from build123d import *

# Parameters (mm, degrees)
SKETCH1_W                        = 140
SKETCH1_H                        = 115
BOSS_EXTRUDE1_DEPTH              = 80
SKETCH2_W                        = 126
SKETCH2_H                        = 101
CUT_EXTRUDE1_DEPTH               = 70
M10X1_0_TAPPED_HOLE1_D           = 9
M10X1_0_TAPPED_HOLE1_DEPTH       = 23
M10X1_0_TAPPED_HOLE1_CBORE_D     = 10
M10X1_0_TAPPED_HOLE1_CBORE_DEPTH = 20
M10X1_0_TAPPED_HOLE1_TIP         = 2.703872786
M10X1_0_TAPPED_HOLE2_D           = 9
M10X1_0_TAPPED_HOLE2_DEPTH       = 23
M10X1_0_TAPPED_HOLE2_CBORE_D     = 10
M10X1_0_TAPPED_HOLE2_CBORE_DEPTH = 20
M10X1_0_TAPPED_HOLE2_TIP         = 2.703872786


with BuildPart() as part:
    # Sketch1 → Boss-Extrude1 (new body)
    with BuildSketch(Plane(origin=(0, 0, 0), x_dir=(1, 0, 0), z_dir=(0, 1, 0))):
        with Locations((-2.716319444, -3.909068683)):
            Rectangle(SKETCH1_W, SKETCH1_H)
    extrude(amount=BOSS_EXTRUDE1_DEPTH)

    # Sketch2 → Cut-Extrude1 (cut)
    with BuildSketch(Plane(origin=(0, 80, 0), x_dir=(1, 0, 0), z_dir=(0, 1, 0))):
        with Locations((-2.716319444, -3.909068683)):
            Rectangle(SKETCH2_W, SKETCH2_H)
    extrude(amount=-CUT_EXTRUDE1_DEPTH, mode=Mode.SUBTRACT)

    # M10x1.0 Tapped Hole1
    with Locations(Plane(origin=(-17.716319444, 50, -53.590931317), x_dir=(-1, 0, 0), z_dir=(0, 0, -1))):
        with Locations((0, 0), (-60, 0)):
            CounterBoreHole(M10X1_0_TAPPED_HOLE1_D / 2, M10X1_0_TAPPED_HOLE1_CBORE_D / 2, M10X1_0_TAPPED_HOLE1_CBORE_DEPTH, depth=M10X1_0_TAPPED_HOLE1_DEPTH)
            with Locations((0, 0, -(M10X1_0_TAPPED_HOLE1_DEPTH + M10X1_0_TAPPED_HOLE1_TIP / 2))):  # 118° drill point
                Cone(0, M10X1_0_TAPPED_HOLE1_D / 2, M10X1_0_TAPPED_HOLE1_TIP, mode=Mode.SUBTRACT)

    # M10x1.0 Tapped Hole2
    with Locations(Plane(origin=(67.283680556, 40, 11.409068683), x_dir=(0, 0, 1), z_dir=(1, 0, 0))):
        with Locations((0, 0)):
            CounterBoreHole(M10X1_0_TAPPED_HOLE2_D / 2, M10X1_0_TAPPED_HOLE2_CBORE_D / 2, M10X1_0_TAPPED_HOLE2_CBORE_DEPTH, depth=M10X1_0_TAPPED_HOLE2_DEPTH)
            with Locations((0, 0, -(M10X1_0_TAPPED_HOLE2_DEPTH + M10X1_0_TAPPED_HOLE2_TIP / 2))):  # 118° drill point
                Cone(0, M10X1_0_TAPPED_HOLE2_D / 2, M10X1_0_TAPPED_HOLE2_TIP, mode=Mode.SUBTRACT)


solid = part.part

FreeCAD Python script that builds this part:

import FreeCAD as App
import Part
import Sketcher

V = App.Vector
Q = App.Units.Quantity

doc = App.newDocument("Part")
body = doc.addObject("PartDesign::Body", "Body")

# Sketch on XZ plane
sketch1 = body.newObject("Sketcher::SketchObject", "Sketch")
sketch1.AttachmentSupport = (doc.getObject("XZ_Plane"), [""])
sketch1.MapMode = "FlatFace"
sketch1.addGeometry(Part.LineSegment(V(-73, -54, 0), V(-73, 61, 0)), False)
sketch1.addGeometry(Part.LineSegment(V(-73, 61, 0), V(67, 61, 0)), False)
sketch1.addGeometry(Part.LineSegment(V(67, 61, 0), V(67, -54, 0)), False)
sketch1.addGeometry(Part.LineSegment(V(67, -54, 0), V(-73, -54, 0)), False)
sketch1.addConstraint(Sketcher.Constraint("Coincident", 0, 2, 1, 1))
sketch1.addConstraint(Sketcher.Constraint("Coincident", 1, 2, 2, 1))
sketch1.addConstraint(Sketcher.Constraint("Coincident", 2, 2, 3, 1))
sketch1.addConstraint(Sketcher.Constraint("Coincident", 3, 2, 0, 1))
sketch1.addConstraint(Sketcher.Constraint("Vertical", 0))
sketch1.addConstraint(Sketcher.Constraint("Horizontal", 1))
sketch1.addConstraint(Sketcher.Constraint("Vertical", 2))
sketch1.addConstraint(Sketcher.Constraint("Horizontal", 3))
sketch1.addConstraint(Sketcher.Constraint("DistanceX", 1, 1, 1, 2, Q("140 mm")))
sketch1.addConstraint(Sketcher.Constraint("DistanceY", 0, 1, 0, 2, Q("115 mm")))
sketch1.addConstraint(Sketcher.Constraint("DistanceX", 0, 2, -1, 1, Q("72.716319 mm")))
sketch1.addConstraint(Sketcher.Constraint("DistanceY", -1, 1, 0, 2, Q("61.409069 mm")))
pad1 = body.newObject("PartDesign::Pad", "Pad")
pad1.Profile = sketch1
pad1.Length = 80
pad1.Reversed = True

# Sketch on XZ plane
sketch2 = body.newObject("Sketcher::SketchObject", "Sketch001")
sketch2.AttachmentSupport = (doc.getObject("XZ_Plane"), [""])
sketch2.MapMode = "FlatFace"
sketch2.AttachmentOffset = App.Placement(V(0, 0, -80), App.Rotation())
sketch2.addGeometry(Part.LineSegment(V(-66, -47, 0), V(-66, 54, 0)), False)
sketch2.addGeometry(Part.LineSegment(V(-66, 54, 0), V(60, 54, 0)), False)
sketch2.addGeometry(Part.LineSegment(V(60, 54, 0), V(60, -47, 0)), False)
sketch2.addGeometry(Part.LineSegment(V(60, -47, 0), V(-66, -47, 0)), False)
sketch2.addConstraint(Sketcher.Constraint("Coincident", 0, 2, 1, 1))
sketch2.addConstraint(Sketcher.Constraint("Coincident", 1, 2, 2, 1))
sketch2.addConstraint(Sketcher.Constraint("Coincident", 2, 2, 3, 1))
sketch2.addConstraint(Sketcher.Constraint("Coincident", 3, 2, 0, 1))
sketch2.addConstraint(Sketcher.Constraint("Vertical", 0))
sketch2.addConstraint(Sketcher.Constraint("Horizontal", 1))
sketch2.addConstraint(Sketcher.Constraint("Vertical", 2))
sketch2.addConstraint(Sketcher.Constraint("Horizontal", 3))
sketch2.addConstraint(Sketcher.Constraint("DistanceX", 1, 1, 1, 2, Q("126 mm")))
sketch2.addConstraint(Sketcher.Constraint("DistanceY", 0, 1, 0, 2, Q("101 mm")))
sketch2.addConstraint(Sketcher.Constraint("DistanceX", 0, 2, -1, 1, Q("65.716319 mm")))
sketch2.addConstraint(Sketcher.Constraint("DistanceY", -1, 1, 0, 2, Q("54.409069 mm")))
pocket1 = body.newObject("PartDesign::Pocket", "Pocket")
pocket1.Profile = sketch2
pocket1.Length = 70
pocket1.Reversed = True

# Sketch on XY plane
sketch3 = body.newObject("Sketcher::SketchObject", "Sketch002")
sketch3.AttachmentSupport = (doc.getObject("XY_Plane"), [""])
sketch3.MapMode = "FlatFace"
sketch3.AttachmentOffset = App.Placement(V(0, 0, -53.590931), App.Rotation())
sketch3.addGeometry(Part.Circle(V(-17.7, 50, 0), V(0, 0, 1), 4.5), False)
sketch3.addGeometry(Part.Circle(V(42.3, 50, 0), V(0, 0, 1), 4.5), False)
sketch3.addConstraint(Sketcher.Constraint("Equal", 0, 1))
sketch3.addConstraint(Sketcher.Constraint("Horizontal", 0, 3, 1, 3))
sketch3.addConstraint(Sketcher.Constraint("Diameter", 0, Q("9 mm")))
sketch3.addConstraint(Sketcher.Constraint("DistanceY", -1, 1, 0, 3, Q("50 mm")))
sketch3.addConstraint(Sketcher.Constraint("DistanceX", 0, 3, 1, 3, Q("60 mm")))
sketch3.addConstraint(Sketcher.Constraint("DistanceX", 0, 3, -1, 1, Q("17.716319 mm")))
doc.recompute()
hole = body.newObject("PartDesign::Hole", "Hole")
hole.Profile = sketch3
hole.ThreadType = "None"
hole.Diameter = 9
hole.DepthType = "Dimension"
hole.Depth = 23
hole.DrillPoint = "Angled"
hole.DrillPointAngle = 118
hole.HoleCutType = "Counterbore"
hole.HoleCutDiameter = 10
hole.HoleCutDepth = 20
hole.Reversed = True

# Sketch on YZ plane
sketch4 = body.newObject("Sketcher::SketchObject", "Sketch003")
sketch4.AttachmentSupport = (doc.getObject("YZ_Plane"), [""])
sketch4.MapMode = "FlatFace"
sketch4.AttachmentOffset = App.Placement(V(0, 0, 67.283681), App.Rotation())
sketch4.addGeometry(Part.Circle(V(40, 11.4, 0), V(0, 0, 1), 4.5), False)
sketch4.addConstraint(Sketcher.Constraint("Diameter", 0, Q("9 mm")))
sketch4.addConstraint(Sketcher.Constraint("DistanceX", -1, 1, 0, 3, Q("40 mm")))
sketch4.addConstraint(Sketcher.Constraint("DistanceY", -1, 1, 0, 3, Q("11.409069 mm")))
doc.recompute()
hole2 = body.newObject("PartDesign::Hole", "Hole001")
hole2.Profile = sketch4
hole2.ThreadType = "None"
hole2.Diameter = 9
hole2.DepthType = "Dimension"
hole2.Depth = 23
hole2.DrillPoint = "Angled"
hole2.DrillPointAngle = 118
hole2.HoleCutType = "Counterbore"
hole2.HoleCutDiameter = 10
hole2.HoleCutDepth = 20

doc.recompute()
